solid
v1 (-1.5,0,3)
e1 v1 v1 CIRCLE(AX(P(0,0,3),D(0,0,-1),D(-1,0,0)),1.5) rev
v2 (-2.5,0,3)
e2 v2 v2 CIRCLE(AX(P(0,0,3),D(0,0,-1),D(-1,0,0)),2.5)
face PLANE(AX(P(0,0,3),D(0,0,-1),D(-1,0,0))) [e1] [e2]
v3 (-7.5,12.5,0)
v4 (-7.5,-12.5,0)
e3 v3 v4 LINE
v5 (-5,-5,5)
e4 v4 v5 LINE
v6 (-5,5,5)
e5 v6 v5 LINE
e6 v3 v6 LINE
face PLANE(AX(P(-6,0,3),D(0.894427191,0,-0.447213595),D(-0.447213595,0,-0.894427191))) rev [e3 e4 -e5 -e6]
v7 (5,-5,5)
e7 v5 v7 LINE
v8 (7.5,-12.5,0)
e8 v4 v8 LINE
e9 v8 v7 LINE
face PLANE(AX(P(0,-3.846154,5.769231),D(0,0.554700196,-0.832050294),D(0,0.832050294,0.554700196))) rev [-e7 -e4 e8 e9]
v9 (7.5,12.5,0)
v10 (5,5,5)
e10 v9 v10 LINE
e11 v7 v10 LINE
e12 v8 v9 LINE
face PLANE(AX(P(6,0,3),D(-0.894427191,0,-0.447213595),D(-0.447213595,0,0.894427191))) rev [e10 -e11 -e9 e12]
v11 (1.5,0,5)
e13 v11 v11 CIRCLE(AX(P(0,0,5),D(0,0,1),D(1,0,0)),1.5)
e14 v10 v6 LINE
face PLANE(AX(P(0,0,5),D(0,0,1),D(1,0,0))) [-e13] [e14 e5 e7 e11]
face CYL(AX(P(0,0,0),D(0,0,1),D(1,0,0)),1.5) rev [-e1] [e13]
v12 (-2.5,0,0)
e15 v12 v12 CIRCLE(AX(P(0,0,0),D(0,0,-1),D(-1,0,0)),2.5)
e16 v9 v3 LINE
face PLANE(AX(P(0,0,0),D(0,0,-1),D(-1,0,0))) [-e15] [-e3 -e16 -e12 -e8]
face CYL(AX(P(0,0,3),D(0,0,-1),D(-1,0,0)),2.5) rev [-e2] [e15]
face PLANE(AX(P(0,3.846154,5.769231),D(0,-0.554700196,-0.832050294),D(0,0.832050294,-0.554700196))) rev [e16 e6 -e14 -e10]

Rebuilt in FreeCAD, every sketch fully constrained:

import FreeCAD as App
import Part
import Sketcher
Q = App.Units.Quantity


def add_polygon(sketch, points):
    """Adds a closed chain of lines whose ends are joined by coincident constraints."""
    first, n = sketch.GeometryCount, len(points)
    for a, b in zip(points, points[1:] + points[:1]):
        sketch.addGeometry(Part.LineSegment(App.Vector(*a, 0), App.Vector(*b, 0)), False)
    for i in range(n):
        sketch.addConstraint(Sketcher.Constraint("Coincident", first + i, 2, first + (i + 1) % n, 1))

doc = App.newDocument("Part")
body = doc.addObject("PartDesign::Body", "Body")

# Sketch on XY plane
sketch1 = doc.addObject("Sketcher::SketchObject", "Sketch")
body.addObject(sketch1)
sketch1.AttachmentSupport = (doc.XY_Plane, [""])
sketch1.MapMode = "FlatFace"
add_polygon(sketch1, [(-8, 12), (-8, -12), (8, -12), (8, 12)])  # lines 0-3
sketch1.addConstraint([
    Sketcher.Constraint("Vertical", 0),
    Sketcher.Constraint("Horizontal", 1),
    Sketcher.Constraint("Vertical", 2),
    Sketcher.Constraint("Horizontal", 3),
    Sketcher.Constraint("Symmetric", 0, 2, 2, 2, -1, 1),
    Sketcher.Constraint("DistanceX", 1, 1, 1, 2, Q("15 mm")),
    Sketcher.Constraint("DistanceY", 0, 2, 0, 1, Q("25 mm")),
])

# Sketch on XY plane
sketch2 = doc.addObject("Sketcher::SketchObject", "Sketch001")
body.addObject(sketch2)
sketch2.AttachmentSupport = (doc.XY_Plane, [""])
sketch2.MapMode = "FlatFace"
sketch2.AttachmentOffset = App.Placement(App.Vector(0, 0, 5), App.Rotation())
add_polygon(sketch2, [(-5, 5), (-5, -5), (5, -5), (5, 5)])  # lines 0-3
sketch2.addConstraint([
    Sketcher.Constraint("Vertical", 0),
    Sketcher.Constraint("Horizontal", 1),
    Sketcher.Constraint("Vertical", 2),
    Sketcher.Constraint("Horizontal", 3),
    Sketcher.Constraint("Symmetric", 0, 2, 2, 2, -1, 1),
    Sketcher.Constraint("Equal", 3, 0),
    Sketcher.Constraint("DistanceX", 1, 1, 1, 2, Q("10 mm")),
])

additiveloft = doc.addObject("PartDesign::AdditiveLoft", "AdditiveLoft")
body.addObject(additiveloft)
additiveloft.Profile = sketch1
additiveloft.Sections = [sketch2]

# Sketch on XY plane
sketch3 = doc.addObject("Sketcher::SketchObject", "Sketch002")
body.addObject(sketch3)
sketch3.AttachmentSupport = (doc.XY_Plane, [""])
sketch3.MapMode = "FlatFace"
sketch3.AttachmentOffset = App.Placement(App.Vector(0, 0, 5), App.Rotation())
sketch3.addGeometry(Part.Circle(App.Vector(0, 0, 0), App.Vector(0, 0, 1), 1.5), False)
sketch3.addConstraint([
    Sketcher.Constraint("Coincident", 0, 3, -1, 1),
    Sketcher.Constraint("Diameter", 0, Q("3 mm")),
])
pocket1 = doc.addObject("PartDesign::Pocket", "Pocket")
body.addObject(pocket1)
pocket1.Profile = sketch3
pocket1.Length = 5

# Sketch on XY plane
sketch4 = doc.addObject("Sketcher::SketchObject", "Sketch003")
body.addObject(sketch4)
sketch4.AttachmentSupport = (doc.XY_Plane, [""])
sketch4.MapMode = "FlatFace"
sketch4.addGeometry(Part.Circle(App.Vector(0, 0, 0), App.Vector(0, 0, 1), 2.5), False)
sketch4.addConstraint([
    Sketcher.Constraint("Coincident", 0, 3, -1, 1),
    Sketcher.Constraint("Diameter", 0, Q("5 mm")),
])
pocket2 = doc.addObject("PartDesign::Pocket", "Pocket001")
body.addObject(pocket2)
pocket2.Profile = sketch4
pocket2.Length = 3
pocket2.Reversed = True

doc.recompute()
